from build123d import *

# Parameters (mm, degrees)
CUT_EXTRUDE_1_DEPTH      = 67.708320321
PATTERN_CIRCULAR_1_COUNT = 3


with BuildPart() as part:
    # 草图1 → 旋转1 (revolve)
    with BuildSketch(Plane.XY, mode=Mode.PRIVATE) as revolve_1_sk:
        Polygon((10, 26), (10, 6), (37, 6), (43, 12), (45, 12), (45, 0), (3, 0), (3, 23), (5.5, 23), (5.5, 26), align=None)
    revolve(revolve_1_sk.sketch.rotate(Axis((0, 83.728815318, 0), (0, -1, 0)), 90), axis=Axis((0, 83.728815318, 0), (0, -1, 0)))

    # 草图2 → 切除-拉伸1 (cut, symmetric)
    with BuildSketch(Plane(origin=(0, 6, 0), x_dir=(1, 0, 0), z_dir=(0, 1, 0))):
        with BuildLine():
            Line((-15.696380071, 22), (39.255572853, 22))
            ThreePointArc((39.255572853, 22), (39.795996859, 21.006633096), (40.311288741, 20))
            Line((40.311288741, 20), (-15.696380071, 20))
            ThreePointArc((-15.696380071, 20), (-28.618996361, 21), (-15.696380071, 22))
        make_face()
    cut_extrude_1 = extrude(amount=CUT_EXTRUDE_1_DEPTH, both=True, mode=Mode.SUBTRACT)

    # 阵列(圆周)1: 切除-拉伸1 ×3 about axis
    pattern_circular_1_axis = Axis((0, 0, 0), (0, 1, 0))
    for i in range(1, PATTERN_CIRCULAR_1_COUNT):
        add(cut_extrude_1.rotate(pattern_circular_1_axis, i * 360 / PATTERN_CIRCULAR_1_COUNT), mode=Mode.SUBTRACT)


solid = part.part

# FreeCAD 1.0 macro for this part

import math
import FreeCAD as App
import Part
import Sketcher

V = App.Vector
Q = App.Units.Quantity


def add_polygon(sketch, points):
    """Adds a closed chain of lines whose ends are joined by coincident constraints."""
    first, n = sketch.GeometryCount, len(points)
    for a, b in zip(points, points[1:] + points[:1]):
        sketch.addGeometry(Part.LineSegment(App.Vector(*a, 0), App.Vector(*b, 0)), False)
    for i in range(n):
        sketch.addConstraint(Sketcher.Constraint("Coincident", first + i, 2, first + (i + 1) % n, 1))

doc = App.newDocument("Part")
body = doc.addObject("PartDesign::Body", "Body")

sketch1 = body.newObject("Sketcher::SketchObject", "Sketch")
sketch1.AttachmentSupport = (doc.getObject("XY_Plane"), [""])
sketch1.MapMode = "FlatFace"
add_polygon(sketch1, [(10, 6), (10, 26), (5.5, 26), (5.5, 23), (3, 23), (3, 0), (45, 0), (45, 12), (43, 12), (37, 6)])
sketch1.addConstraint([
    Sketcher.Constraint("Vertical", 0),
    Sketcher.Constraint("Horizontal", 1),
    Sketcher.Constraint("Vertical", 2),
    Sketcher.Constraint("Horizontal", 3),
    Sketcher.Constraint("Vertical", 4),
    Sketcher.Constraint("Horizontal", 5),
    Sketcher.Constraint("Vertical", 6),
    Sketcher.Constraint("Horizontal", 7),
    Sketcher.Constraint("Horizontal", 9),
    Sketcher.Constraint("PointOnObject", 4, 2, -1),
    Sketcher.Constraint("DistanceX", 5, 1, 5, 2, Q("42 mm")),
    Sketcher.Constraint("DistanceX", 7, 2, 7, 1, Q("2 mm")),
    Sketcher.Constraint("DistanceX", 9, 2, 9, 1, Q("27 mm")),
    Sketcher.Constraint("DistanceY", 0, 1, 0, 2, Q("20 mm")),
    Sketcher.Constraint("DistanceY", 2, 2, 2, 1, Q("3 mm")),
    Sketcher.Constraint("DistanceY", 4, 2, 4, 1, Q("23 mm")),
    Sketcher.Constraint("DistanceY", 6, 1, 6, 2, Q("12 mm")),
    Sketcher.Constraint("Angle", 8, Q("-135 deg")),
    Sketcher.Constraint("DistanceX", 1, 2, 1, 1, Q("4.5 mm")),
    Sketcher.Constraint("DistanceX", -1, 1, 0, 2, Q("10 mm")),
])
revolution = body.newObject("PartDesign::Revolution", "Revolution")
revolution.Profile = sketch1
revolution.ReferenceAxis = (sketch1, ["V_Axis"])
revolution.Angle = 360

sketch2 = body.newObject("Sketcher::SketchObject", "Sketch001")
sketch2.AttachmentSupport = (doc.getObject("XZ_Plane"), [""])
sketch2.MapMode = "FlatFace"
sketch2.AttachmentOffset = App.Placement(V(0, 0, -6), App.Rotation())
sketch2.addGeometry([
    Part.LineSegment(V(39.3, -22, 0), V(-15.7, -22, 0)),
    Part.ArcOfCircle(Part.Circle(V(-22.1, -21, 0), V(0, 0, 1), 6.5), math.radians(9), math.radians(351)),
    Part.LineSegment(V(-15.7, -20, 0), V(40.3, -20, 0)),
    Part.ArcOfCircle(Part.Circle(V(0, 0, 0), V(0, 0, 1), 45), math.radians(-29.27), math.radians(-26.39)),
], False)
sketch2.addConstraint([
    Sketcher.Constraint("Coincident", 0, 2, 1, 2),
    Sketcher.Constraint("Coincident", 1, 1, 2, 1),
    Sketcher.Constraint("Coincident", 2, 2, 3, 2),
    Sketcher.Constraint("Coincident", 3, 1, 0, 1),
    Sketcher.Constraint("Horizontal", 0),
    Sketcher.Constraint("Horizontal", 2),
    Sketcher.Constraint("Coincident", 3, 3, -1, 1),
    Sketcher.Constraint("Vertical", 0, 2, 1, 1),
    Sketcher.Constraint("Radius", 3, Q("44.999998 mm")),
    Sketcher.Constraint("Radius", 1, Q("6.5 mm")),
    Sketcher.Constraint("DistanceY", 1, 3, -1, 1, Q("21 mm")),
    Sketcher.Constraint("DistanceY", 0, 2, -1, 1, Q("22 mm")),
    Sketcher.Constraint("DistanceX", 2, 1, 2, 2, Q("56.007669 mm")),
])
pocket1 = body.newObject("PartDesign::Pocket", "Pocket")
pocket1.Profile = sketch2
pocket1.Length = 135.416641
pocket1.Midplane = True
doc.recompute()

polarpattern = body.newObject("PartDesign::PolarPattern", "PolarPattern")
polarpattern.Originals = [pocket1]
polarpattern.Axis = (doc.getObject("Y_Axis"), [""])
polarpattern.Angle = 360
polarpattern.Occurrences = 3
body.Tip = polarpattern

doc.recompute()
